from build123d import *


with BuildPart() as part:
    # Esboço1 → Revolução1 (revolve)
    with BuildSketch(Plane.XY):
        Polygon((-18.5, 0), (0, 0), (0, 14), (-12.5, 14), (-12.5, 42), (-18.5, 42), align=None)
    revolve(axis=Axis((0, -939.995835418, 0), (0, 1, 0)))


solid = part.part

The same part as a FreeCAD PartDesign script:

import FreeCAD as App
import Part
import Sketcher


def add_polygon(sketch, points):
    """Adds a closed chain of lines whose ends are joined by coincident constraints."""
    first, n = sketch.GeometryCount, len(points)
    for a, b in zip(points, points[1:] + points[:1]):
        sketch.addGeometry(Part.LineSegment(App.Vector(*a, 0), App.Vector(*b, 0)), False)
    for i in range(n):
        sketch.addConstraint(Sketcher.Constraint("Coincident", first + i, 2, first + (i + 1) % n, 1))

doc = App.newDocument("Part")
body = doc.addObject("PartDesign::Body", "Body")

sketch1 = body.newObject("Sketcher::SketchObject", "Sketch")
sketch1.AttachmentSupport = (doc.getObject("XY_Plane"), [""])
sketch1.MapMode = "FlatFace"
add_polygon(sketch1, [(-18, 0), (0, 0), (0, 14), (-12, 14), (-12, 42), (-18, 42)])
sketch1.addConstraint([
    Sketcher.Constraint("Horizontal", 0),
    Sketcher.Constraint("Vertical", 1),
    Sketcher.Constraint("Horizontal", 2),
    Sketcher.Constraint("Vertical", 3),
    Sketcher.Constraint("Horizontal", 4),
    Sketcher.Constraint("Vertical", 5),
    Sketcher.Constraint("Coincident", 0, 2, -1, 1),
    Sketcher.Constraint("DistanceX", 4, 2, 4, 1, 6.0),
    Sketcher.Constraint("DistanceY", 1, 1, 1, 2, 14.0),
    Sketcher.Constraint("DistanceY", 3, 1, 3, 2, 28.0),
    Sketcher.Constraint("DistanceX", 0, 1, 0, 2, 18.5),
])
revolution = body.newObject("PartDesign::Revolution", "Revolution")
revolution.Profile = sketch1
revolution.ReferenceAxis = (sketch1, ["V_Axis"])
revolution.Angle = 360

doc.recompute()
